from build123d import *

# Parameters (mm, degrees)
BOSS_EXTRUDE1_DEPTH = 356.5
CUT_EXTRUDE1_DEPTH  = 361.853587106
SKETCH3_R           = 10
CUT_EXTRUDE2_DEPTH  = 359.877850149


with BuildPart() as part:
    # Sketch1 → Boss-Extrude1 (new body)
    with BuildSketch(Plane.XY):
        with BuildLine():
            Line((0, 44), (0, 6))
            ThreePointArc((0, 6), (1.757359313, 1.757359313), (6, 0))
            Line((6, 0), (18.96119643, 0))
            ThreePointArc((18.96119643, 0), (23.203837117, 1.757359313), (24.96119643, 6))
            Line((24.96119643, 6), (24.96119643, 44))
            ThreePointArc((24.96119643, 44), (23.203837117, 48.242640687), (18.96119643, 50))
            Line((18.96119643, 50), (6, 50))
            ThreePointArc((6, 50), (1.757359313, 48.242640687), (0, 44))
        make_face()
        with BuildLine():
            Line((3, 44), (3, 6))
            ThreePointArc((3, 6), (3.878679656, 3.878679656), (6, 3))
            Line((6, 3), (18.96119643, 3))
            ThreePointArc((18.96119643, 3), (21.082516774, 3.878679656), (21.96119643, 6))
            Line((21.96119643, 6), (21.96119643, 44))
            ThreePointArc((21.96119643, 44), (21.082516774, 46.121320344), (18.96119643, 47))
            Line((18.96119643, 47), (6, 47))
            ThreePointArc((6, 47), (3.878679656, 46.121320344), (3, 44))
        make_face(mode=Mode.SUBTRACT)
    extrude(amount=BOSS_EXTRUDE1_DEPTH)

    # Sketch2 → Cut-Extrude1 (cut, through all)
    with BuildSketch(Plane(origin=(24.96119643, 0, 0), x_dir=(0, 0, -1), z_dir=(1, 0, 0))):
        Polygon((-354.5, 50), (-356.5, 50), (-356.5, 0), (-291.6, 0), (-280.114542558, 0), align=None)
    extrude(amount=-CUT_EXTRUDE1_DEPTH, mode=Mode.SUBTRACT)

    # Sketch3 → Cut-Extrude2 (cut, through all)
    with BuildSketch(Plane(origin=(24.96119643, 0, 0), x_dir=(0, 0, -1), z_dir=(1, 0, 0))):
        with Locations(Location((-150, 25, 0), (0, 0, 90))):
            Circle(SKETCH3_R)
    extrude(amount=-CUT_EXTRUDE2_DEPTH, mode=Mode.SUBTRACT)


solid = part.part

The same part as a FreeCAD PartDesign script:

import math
import FreeCAD as App
import Part
import Sketcher

doc = App.newDocument("Part")
body = doc.addObject("PartDesign::Body", "Body")

# Sketch on XY plane
sketch1 = body.newObject("Sketcher::SketchObject", "Sketch")
sketch1.AttachmentSupport = (doc.getObject("XY_Plane"), [""])
sketch1.MapMode = "FlatFace"
sketch1.addGeometry(Part.LineSegment(App.Vector(0, 44, 0), App.Vector(0, 6, 0)), False)
sketch1.addGeometry(Part.ArcOfCircle(Part.Circle(App.Vector(6, 6, 0), App.Vector(0, 0, 1), 6), math.radians(180), math.radians(270)), False)
sketch1.addGeometry(Part.LineSegment(App.Vector(6, 0, 0), App.Vector(19, 0, 0)), False)
sketch1.addGeometry(Part.ArcOfCircle(Part.Circle(App.Vector(19, 6, 0), App.Vector(0, 0, 1), 6), math.radians(-90), math.radians(0)), False)
sketch1.addGeometry(Part.LineSegment(App.Vector(25, 6, 0), App.Vector(25, 44, 0)), False)
sketch1.addGeometry(Part.ArcOfCircle(Part.Circle(App.Vector(19, 44, 0), App.Vector(0, 0, 1), 6), math.radians(0), math.radians(90)), False)
sketch1.addGeometry(Part.LineSegment(App.Vector(19, 50, 0), App.Vector(6, 50, 0)), False)
sketch1.addGeometry(Part.ArcOfCircle(Part.Circle(App.Vector(6, 44, 0), App.Vector(0, 0, 1), 6), math.radians(90), math.radians(180)), False)
sketch1.addGeometry(Part.LineSegment(App.Vector(3, 6, 0), App.Vector(3, 44, 0)), False)
sketch1.addGeometry(Part.ArcOfCircle(Part.Circle(App.Vector(6, 44, 0), App.Vector(0, 0, 1), 3), math.radians(90), math.radians(180)), False)
sketch1.addGeometry(Part.LineSegment(App.Vector(6, 47, 0), App.Vector(19, 47, 0)), False)
sketch1.addGeometry(Part.ArcOfCircle(Part.Circle(App.Vector(19, 44, 0), App.Vector(0, 0, 1), 3), math.radians(0), math.radians(90)), False)
sketch1.addGeometry(Part.LineSegment(App.Vector(22, 44, 0), App.Vector(22, 6, 0)), False)
sketch1.addGeometry(Part.ArcOfCircle(Part.Circle(App.Vector(19, 6, 0), App.Vector(0, 0, 1), 3), math.radians(-90), math.radians(0)), False)
sketch1.addGeometry(Part.LineSegment(App.Vector(19, 3, 0), App.Vector(6, 3, 0)), False)
sketch1.addGeometry(Part.ArcOfCircle(Part.Circle(App.Vector(6, 6, 0), App.Vector(0, 0, 1), 3), math.radians(180), math.radians(270)), False)
sketch1.addConstraint(Sketcher.Constraint("Tangent", 0, 2, 1, 1))
sketch1.addConstraint(Sketcher.Constraint("Tangent", 1, 2, 2, 1))
sketch1.addConstraint(Sketcher.Constraint("Tangent", 2, 2, 3, 1))
sketch1.addConstraint(Sketcher.Constraint("Tangent", 3, 2, 4, 1))
sketch1.addConstraint(Sketcher.Constraint("Tangent", 4, 2, 5, 1))
sketch1.addConstraint(Sketcher.Constraint("Tangent", 5, 2, 6, 1))
sketch1.addConstraint(Sketcher.Constraint("Tangent", 6, 2, 7, 1))
sketch1.addConstraint(Sketcher.Constraint("Tangent", 7, 2, 0, 1))
sketch1.addConstraint(Sketcher.Constraint("Tangent", 8, 2, 9, 2))
sketch1.addConstraint(Sketcher.Constraint("Tangent", 9, 1, 10, 1))
sketch1.addConstraint(Sketcher.Constraint("Tangent", 10, 2, 11, 2))
sketch1.addConstraint(Sketcher.Constraint("Tangent", 11, 1, 12, 1))
sketch1.addConstraint(Sketcher.Constraint("Tangent", 12, 2, 13, 2))
sketch1.addConstraint(Sketcher.Constraint("Tangent", 13, 1, 14, 1))
sketch1.addConstraint(Sketcher.Constraint("Tangent", 14, 2, 15, 2))
sketch1.addConstraint(Sketcher.Constraint("Tangent", 15, 1, 8, 1))
sketch1.addConstraint(Sketcher.Constraint("Vertical", 0))
sketch1.addConstraint(Sketcher.Constraint("Horizontal", 2))
sketch1.addConstraint(Sketcher.Constraint("Vertical", 4))
sketch1.addConstraint(Sketcher.Constraint("Horizontal", 6))
sketch1.addConstraint(Sketcher.Constraint("Vertical", 8))
sketch1.addConstraint(Sketcher.Constraint("Horizontal", 10))
sketch1.addConstraint(Sketcher.Constraint("Vertical", 12))
sketch1.addConstraint(Sketcher.Constraint("Horizontal", 14))
sketch1.addConstraint(Sketcher.Constraint("Coincident", 9, 3, 7, 3))
sketch1.addConstraint(Sketcher.Constraint("Coincident", 11, 3, 5, 3))
sketch1.addConstraint(Sketcher.Constraint("Coincident", 13, 3, 3, 3))
sketch1.addConstraint(Sketcher.Constraint("Equal", 1, 3))
sketch1.addConstraint(Sketcher.Constraint("Equal", 3, 5))
sketch1.addConstraint(Sketcher.Constraint("Equal", 5, 7))
sketch1.addConstraint(Sketcher.Constraint("Equal", 13, 15))
sketch1.addConstraint(Sketcher.Constraint("PointOnObject", 0, 2, -2))
sketch1.addConstraint(Sketcher.Constraint("PointOnObject", 1, 2, -1))
sketch1.addConstraint(Sketcher.Constraint("Radius", 1, 6.0))
sketch1.addConstraint(Sketcher.Constraint("Radius", 9, 3.0))
sketch1.addConstraint(Sketcher.Constraint("DistanceY", 0, 2, 0, 1, 38.0))
sketch1.addConstraint(Sketcher.Constraint("DistanceX", 2, 1, 2, 2, 12.961196))
pad1 = body.newObject("PartDesign::Pad", "Pad")
pad1.Profile = sketch1
pad1.Length = 356.5

# Sketch on YZ plane
sketch2 = body.newObject("Sketcher::SketchObject", "Sketch001")
sketch2.AttachmentSupport = (doc.getObject("YZ_Plane"), [""])
sketch2.MapMode = "FlatFace"
sketch2.AttachmentOffset = App.Placement(App.Vector(0, 0, 24.961196), App.Rotation())
sketch2.addGeometry(Part.LineSegment(App.Vector(50, 354.5, 0), App.Vector(50, 356.5, 0)), False)
sketch2.addGeometry(Part.LineSegment(App.Vector(50, 356.5, 0), App.Vector(0, 356.5, 0)), False)
sketch2.addGeometry(Part.LineSegment(App.Vector(0, 356.5, 0), App.Vector(0, 280.1, 0)), False)
sketch2.addGeometry(Part.LineSegment(App.Vector(0, 280.1, 0), App.Vector(50, 354.5, 0)), False)
sketch2.addConstraint(Sketcher.Constraint("Coincident", 0, 2, 1, 1))
sketch2.addConstraint(Sketcher.Constraint("Coincident", 1, 2, 2, 1))
sketch2.addConstraint(Sketcher.Constraint("Coincident", 2, 2, 3, 1))
sketch2.addConstraint(Sketcher.Constraint("Coincident", 3, 2, 0, 1))
sketch2.addConstraint(Sketcher.Constraint("Vertical", 0))
sketch2.addConstraint(Sketcher.Constraint("Horizontal", 1))
sketch2.addConstraint(Sketcher.Constraint("Vertical", 2))
sketch2.addConstraint(Sketcher.Constraint("PointOnObject", 1, 2, -2))
sketch2.addConstraint(Sketcher.Constraint("DistanceX", 1, 2, 1, 1, 50.0))
sketch2.addConstraint(Sketcher.Constraint("DistanceY", 0, 1, 0, 2, 2.0))
sketch2.addConstraint(Sketcher.Constraint("DistanceY", -1, 1, 0, 2, 356.5))
sketch2.addConstraint(Sketcher.Constraint("Distance", 3, 89.6281))
pocket1 = body.newObject("PartDesign::Pocket", "Pocket")
pocket1.Profile = sketch2
pocket1.Type = "ThroughAll"

# Sketch on YZ plane
sketch3 = body.newObject("Sketcher::SketchObject", "Sketch002")
sketch3.AttachmentSupport = (doc.getObject("YZ_Plane"), [""])
sketch3.MapMode = "FlatFace"
sketch3.AttachmentOffset = App.Placement(App.Vector(0, 0, 24.961196), App.Rotation())
sketch3.addGeometry(Part.Circle(App.Vector(25, 150, 0), App.Vector(0, 0, 1), 10), False)
sketch3.addConstraint(Sketcher.Constraint("Diameter", 0, 20.0))
sketch3.addConstraint(Sketcher.Constraint("DistanceX", -1, 1, 0, 3, 25.0))
sketch3.addConstraint(Sketcher.Constraint("DistanceY", -1, 1, 0, 3, 150.0))
pocket2 = body.newObject("PartDesign::Pocket", "Pocket001")
pocket2.Profile = sketch3
pocket2.Type = "ThroughAll"

doc.recompute()
